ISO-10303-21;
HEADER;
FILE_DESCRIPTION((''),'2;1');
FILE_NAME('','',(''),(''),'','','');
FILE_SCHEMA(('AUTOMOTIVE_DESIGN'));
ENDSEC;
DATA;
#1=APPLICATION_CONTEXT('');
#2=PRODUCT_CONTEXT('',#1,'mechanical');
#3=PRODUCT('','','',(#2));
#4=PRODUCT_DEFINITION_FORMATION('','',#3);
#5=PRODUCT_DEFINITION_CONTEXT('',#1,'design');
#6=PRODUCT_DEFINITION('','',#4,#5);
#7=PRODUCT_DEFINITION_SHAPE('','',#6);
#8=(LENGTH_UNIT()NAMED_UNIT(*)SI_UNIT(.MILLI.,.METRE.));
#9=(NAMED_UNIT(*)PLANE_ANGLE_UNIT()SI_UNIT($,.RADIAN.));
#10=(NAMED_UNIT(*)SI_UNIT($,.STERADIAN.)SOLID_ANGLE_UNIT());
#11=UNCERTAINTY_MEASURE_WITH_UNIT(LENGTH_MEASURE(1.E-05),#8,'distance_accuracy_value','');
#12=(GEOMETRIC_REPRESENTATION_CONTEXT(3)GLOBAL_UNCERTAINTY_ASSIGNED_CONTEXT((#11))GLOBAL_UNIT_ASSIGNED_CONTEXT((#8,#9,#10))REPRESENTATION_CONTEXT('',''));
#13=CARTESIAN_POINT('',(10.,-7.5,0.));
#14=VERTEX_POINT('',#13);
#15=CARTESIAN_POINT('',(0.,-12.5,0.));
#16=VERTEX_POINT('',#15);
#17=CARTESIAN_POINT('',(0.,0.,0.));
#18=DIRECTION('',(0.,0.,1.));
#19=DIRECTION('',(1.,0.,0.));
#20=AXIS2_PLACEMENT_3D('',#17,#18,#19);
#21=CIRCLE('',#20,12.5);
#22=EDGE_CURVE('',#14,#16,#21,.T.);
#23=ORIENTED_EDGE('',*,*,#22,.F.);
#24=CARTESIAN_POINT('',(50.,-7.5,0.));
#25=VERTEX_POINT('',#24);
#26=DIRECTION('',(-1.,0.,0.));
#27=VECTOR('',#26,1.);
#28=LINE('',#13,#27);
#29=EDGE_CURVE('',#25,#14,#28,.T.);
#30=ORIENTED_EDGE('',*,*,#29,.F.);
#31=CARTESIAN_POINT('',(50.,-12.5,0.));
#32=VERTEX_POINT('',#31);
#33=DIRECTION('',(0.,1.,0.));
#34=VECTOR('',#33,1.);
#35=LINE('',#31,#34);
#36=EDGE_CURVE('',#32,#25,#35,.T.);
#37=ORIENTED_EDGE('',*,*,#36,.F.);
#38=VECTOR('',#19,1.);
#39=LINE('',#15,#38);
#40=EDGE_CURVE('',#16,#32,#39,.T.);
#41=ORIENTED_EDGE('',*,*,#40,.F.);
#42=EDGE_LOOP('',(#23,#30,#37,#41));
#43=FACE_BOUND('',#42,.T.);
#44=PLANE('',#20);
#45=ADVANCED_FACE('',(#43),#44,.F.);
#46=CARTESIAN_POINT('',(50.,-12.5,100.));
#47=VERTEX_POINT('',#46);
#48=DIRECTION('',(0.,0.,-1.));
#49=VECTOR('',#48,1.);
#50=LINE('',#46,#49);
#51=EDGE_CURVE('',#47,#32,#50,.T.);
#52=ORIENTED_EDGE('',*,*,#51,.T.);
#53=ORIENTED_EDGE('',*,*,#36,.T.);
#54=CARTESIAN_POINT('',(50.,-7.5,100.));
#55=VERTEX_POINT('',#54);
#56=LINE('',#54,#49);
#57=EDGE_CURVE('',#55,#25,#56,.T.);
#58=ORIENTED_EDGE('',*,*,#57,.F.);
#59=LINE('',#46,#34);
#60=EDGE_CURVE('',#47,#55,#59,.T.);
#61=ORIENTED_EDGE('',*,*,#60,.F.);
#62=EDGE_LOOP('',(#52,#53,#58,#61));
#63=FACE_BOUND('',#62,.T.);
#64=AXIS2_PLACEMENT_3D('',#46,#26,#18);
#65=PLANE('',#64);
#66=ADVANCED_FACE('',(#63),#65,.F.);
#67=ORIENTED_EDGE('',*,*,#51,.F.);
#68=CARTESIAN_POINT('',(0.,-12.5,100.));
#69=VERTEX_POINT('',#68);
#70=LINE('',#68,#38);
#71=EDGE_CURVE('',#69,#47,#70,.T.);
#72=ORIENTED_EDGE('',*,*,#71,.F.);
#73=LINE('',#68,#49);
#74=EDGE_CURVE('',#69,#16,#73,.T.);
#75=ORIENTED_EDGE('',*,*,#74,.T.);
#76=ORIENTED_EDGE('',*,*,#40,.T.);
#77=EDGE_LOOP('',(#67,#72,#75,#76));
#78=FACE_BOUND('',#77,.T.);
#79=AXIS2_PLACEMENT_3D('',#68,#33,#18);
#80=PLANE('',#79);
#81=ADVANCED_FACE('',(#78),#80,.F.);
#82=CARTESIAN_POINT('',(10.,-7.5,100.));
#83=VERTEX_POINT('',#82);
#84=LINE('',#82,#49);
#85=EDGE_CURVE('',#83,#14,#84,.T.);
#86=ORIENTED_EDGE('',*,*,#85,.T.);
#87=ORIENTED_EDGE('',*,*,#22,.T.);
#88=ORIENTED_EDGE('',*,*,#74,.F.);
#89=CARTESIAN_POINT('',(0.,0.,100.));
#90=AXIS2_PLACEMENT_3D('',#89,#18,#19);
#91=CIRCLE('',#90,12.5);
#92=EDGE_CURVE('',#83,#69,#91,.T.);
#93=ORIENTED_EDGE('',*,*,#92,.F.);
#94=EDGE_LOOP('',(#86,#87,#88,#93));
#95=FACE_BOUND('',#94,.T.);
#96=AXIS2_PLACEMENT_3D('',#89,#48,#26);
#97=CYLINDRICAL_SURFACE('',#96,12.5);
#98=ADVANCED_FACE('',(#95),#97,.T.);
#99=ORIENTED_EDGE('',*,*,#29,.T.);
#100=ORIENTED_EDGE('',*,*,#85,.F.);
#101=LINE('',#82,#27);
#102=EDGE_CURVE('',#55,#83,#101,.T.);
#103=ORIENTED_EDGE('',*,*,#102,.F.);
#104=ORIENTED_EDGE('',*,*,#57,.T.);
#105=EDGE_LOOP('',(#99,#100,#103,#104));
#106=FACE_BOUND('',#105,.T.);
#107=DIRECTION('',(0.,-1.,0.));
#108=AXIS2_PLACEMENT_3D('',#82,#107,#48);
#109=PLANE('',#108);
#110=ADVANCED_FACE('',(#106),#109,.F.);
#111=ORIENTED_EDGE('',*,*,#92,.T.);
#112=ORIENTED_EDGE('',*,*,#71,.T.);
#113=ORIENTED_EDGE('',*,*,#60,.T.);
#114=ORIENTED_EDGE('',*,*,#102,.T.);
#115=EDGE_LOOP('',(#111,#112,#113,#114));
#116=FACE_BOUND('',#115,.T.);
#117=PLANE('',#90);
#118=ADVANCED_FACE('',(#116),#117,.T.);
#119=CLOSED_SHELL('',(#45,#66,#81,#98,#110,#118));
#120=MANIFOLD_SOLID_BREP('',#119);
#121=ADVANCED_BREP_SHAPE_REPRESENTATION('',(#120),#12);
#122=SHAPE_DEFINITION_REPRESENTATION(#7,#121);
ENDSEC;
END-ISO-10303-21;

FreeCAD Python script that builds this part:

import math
import FreeCAD as App
import Part
import Sketcher

V = App.Vector
Q = App.Units.Quantity

doc = App.newDocument("Part")
body = doc.addObject("PartDesign::Body", "Body")

# Sketch on XY plane
sketch1 = body.newObject("Sketcher::SketchObject", "Sketch")
sketch1.AttachmentSupport = (doc.getObject("XY_Plane"), [""])
sketch1.MapMode = "FlatFace"
sketch1.addGeometry([
    Part.LineSegment(V(0, -12, 0), V(50, -12, 0)),
    Part.LineSegment(V(50, -12, 0), V(50, -8, 0)),
    Part.LineSegment(V(50, -8, 0), V(10, -8, 0)),
    Part.ArcOfCircle(Part.Circle(V(0, 0, 0), V(0, 0, 1), 12), math.radians(-37), math.radians(270)),
], False)
sketch1.addConstraint([
    Sketcher.Constraint("Coincident", 0, 2, 1, 1),
    Sketcher.Constraint("Coincident", 1, 2, 2, 1),
    Sketcher.Constraint("Coincident", 2, 2, 3, 1),
    Sketcher.Constraint("Tangent", 3, 2, 0, 1),
    Sketcher.Constraint("Horizontal", 0),
    Sketcher.Constraint("Vertical", 1),
    Sketcher.Constraint("Horizontal", 2),
    Sketcher.Constraint("Coincident", 3, 3, -1, 1),
    Sketcher.Constraint("Radius", 3, Q("12.5 mm")),
    Sketcher.Constraint("DistanceX", 0, 1, 0, 2, Q("50 mm")),
    Sketcher.Constraint("DistanceX", 2, 2, 2, 1, Q("40 mm")),
])
pad1 = body.newObject("PartDesign::Pad", "Pad")
pad1.Profile = sketch1
pad1.Length = 100

doc.recompute()
